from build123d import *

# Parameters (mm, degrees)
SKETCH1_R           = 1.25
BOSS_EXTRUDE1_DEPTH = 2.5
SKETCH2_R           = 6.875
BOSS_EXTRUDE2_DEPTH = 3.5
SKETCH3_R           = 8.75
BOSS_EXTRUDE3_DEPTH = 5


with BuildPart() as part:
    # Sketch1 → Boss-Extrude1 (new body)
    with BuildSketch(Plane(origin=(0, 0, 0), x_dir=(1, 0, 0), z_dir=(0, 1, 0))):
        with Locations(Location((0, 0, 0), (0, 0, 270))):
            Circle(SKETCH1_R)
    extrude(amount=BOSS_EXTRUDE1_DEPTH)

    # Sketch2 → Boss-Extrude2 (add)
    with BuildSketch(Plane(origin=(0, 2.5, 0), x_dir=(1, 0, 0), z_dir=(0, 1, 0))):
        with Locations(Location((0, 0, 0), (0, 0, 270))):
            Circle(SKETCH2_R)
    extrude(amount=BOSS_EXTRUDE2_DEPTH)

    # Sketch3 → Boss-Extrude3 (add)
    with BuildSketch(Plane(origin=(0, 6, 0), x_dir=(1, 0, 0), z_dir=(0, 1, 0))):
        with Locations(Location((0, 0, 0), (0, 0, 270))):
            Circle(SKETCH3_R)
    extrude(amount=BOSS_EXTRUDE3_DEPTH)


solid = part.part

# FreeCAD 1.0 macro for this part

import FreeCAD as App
import Part
import Sketcher

V = App.Vector
Q = App.Units.Quantity

doc = App.newDocument("Part")
body = doc.addObject("PartDesign::Body", "Body")

# Sketch on XZ plane
sketch1 = body.newObject("Sketcher::SketchObject", "Sketch")
sketch1.AttachmentSupport = (doc.getObject("XZ_Plane"), [""])
sketch1.MapMode = "FlatFace"
sketch1.addGeometry(Part.Circle(V(0, 0, 0), V(0, 0, 1), 1.25), False)
sketch1.addConstraint([
    Sketcher.Constraint("Coincident", 0, 3, -1, 1),
    Sketcher.Constraint("Diameter", 0, Q("2.5 mm")),
])
pad1 = body.newObject("PartDesign::Pad", "Pad")
pad1.Profile = sketch1
pad1.Length = 2.5
pad1.Reversed = True

# Sketch on XZ plane
sketch2 = body.newObject("Sketcher::SketchObject", "Sketch001")
sketch2.AttachmentSupport = (doc.getObject("XZ_Plane"), [""])
sketch2.MapMode = "FlatFace"
sketch2.AttachmentOffset = App.Placement(V(0, 0, -2.5), App.Rotation())
sketch2.addGeometry(Part.Circle(V(0, 0, 0), V(0, 0, 1), 6.875), False)
sketch2.addConstraint([
    Sketcher.Constraint("Coincident", 0, 3, -1, 1),
    Sketcher.Constraint("Diameter", 0, Q("13.75 mm")),
])
pad2 = body.newObject("PartDesign::Pad", "Pad001")
pad2.Profile = sketch2
pad2.Length = 3.5
pad2.Reversed = True

# Sketch on XZ plane
sketch3 = body.newObject("Sketcher::SketchObject", "Sketch002")
sketch3.AttachmentSupport = (doc.getObject("XZ_Plane"), [""])
sketch3.MapMode = "FlatFace"
sketch3.AttachmentOffset = App.Placement(V(0, 0, -6), App.Rotation())
sketch3.addGeometry(Part.Circle(V(0, 0, 0), V(0, 0, 1), 8.75), False)
sketch3.addConstraint([
    Sketcher.Constraint("Coincident", 0, 3, -1, 1),
    Sketcher.Constraint("Diameter", 0, Q("17.5 mm")),
])
pad3 = body.newObject("PartDesign::Pad", "Pad002")
pad3.Profile = sketch3
pad3.Length = 5
pad3.Reversed = True

doc.recompute()
